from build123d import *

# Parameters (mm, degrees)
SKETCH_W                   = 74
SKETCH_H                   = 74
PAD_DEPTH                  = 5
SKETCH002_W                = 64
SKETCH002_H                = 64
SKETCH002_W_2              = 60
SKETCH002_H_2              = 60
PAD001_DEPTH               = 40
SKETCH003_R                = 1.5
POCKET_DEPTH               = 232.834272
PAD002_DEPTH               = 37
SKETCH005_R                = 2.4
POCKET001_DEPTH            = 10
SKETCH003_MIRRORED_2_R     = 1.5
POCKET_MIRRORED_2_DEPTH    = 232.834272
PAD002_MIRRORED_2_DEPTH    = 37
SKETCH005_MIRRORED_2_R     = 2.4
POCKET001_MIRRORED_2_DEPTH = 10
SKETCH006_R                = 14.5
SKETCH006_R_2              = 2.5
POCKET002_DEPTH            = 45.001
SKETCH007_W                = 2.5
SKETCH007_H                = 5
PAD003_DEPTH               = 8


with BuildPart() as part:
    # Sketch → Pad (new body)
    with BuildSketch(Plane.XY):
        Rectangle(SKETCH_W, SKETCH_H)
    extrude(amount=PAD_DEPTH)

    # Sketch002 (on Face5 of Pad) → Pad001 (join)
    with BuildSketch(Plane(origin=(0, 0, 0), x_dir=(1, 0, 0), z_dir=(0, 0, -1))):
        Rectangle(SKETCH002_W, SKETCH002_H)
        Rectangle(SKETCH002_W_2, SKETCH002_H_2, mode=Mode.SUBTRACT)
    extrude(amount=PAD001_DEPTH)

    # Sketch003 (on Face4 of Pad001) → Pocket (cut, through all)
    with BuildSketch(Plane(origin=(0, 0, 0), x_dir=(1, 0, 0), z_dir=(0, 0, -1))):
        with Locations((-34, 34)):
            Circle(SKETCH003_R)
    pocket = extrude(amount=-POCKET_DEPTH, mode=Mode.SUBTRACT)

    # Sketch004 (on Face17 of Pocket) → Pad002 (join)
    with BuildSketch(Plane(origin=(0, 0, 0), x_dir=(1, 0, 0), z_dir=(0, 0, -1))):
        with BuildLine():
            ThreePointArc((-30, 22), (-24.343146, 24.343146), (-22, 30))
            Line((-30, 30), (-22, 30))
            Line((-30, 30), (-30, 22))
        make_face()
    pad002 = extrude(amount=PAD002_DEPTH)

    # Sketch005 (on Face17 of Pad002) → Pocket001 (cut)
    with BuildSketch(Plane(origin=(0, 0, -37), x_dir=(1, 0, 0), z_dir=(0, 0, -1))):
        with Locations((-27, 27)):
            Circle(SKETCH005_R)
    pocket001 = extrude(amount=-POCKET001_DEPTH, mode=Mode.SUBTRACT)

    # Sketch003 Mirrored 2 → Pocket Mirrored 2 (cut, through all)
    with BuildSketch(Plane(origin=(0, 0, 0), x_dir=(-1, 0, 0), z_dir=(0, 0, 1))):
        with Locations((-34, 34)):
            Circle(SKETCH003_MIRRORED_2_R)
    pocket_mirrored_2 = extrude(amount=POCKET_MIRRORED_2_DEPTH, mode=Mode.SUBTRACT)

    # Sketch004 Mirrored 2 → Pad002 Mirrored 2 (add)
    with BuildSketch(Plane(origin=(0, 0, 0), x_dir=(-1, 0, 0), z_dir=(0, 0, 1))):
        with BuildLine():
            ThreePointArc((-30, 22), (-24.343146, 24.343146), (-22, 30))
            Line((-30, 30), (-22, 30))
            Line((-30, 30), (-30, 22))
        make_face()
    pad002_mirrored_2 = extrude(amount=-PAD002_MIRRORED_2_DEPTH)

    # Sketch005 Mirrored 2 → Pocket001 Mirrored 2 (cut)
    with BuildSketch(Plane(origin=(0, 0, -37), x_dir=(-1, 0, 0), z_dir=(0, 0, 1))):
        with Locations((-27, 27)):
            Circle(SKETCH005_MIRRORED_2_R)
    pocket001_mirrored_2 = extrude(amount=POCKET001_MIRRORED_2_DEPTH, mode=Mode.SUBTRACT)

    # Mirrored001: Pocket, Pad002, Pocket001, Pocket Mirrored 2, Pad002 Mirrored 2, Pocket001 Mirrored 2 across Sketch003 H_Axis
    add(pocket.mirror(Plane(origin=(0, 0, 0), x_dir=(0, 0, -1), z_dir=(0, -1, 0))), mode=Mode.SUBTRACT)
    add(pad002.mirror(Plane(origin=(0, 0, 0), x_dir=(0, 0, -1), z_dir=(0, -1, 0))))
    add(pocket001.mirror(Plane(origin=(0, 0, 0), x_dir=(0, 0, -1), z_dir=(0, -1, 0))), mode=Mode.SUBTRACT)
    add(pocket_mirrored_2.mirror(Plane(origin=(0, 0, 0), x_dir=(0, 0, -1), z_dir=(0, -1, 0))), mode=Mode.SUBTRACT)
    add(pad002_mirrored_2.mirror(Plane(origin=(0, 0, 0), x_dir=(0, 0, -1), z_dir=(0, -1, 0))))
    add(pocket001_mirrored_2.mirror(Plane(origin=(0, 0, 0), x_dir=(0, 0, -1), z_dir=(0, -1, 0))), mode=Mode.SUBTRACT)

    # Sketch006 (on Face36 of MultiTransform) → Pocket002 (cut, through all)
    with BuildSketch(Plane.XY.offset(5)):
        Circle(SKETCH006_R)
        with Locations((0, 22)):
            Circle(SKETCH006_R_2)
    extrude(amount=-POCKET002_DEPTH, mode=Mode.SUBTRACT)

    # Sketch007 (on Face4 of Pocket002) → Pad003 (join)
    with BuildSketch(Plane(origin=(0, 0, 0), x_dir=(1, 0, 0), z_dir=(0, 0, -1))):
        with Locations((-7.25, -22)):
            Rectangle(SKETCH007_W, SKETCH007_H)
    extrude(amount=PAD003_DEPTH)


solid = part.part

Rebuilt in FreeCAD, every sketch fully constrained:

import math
import FreeCAD as App
import Part
import Sketcher

V = App.Vector

doc = App.newDocument("Part")
body = doc.addObject("PartDesign::Body", "Body")

# Sketch on XY plane
sketch1 = body.newObject("Sketcher::SketchObject", "Sketch")
sketch1.AttachmentSupport = (doc.getObject("XY_Plane"), [""])
sketch1.MapMode = "FlatFace"
sketch1.addGeometry(Part.LineSegment(V(-37, 37, 0), V(-37, -37, 0)), False)
sketch1.addGeometry(Part.LineSegment(V(-37, -37, 0), V(37, -37, 0)), False)
sketch1.addGeometry(Part.LineSegment(V(37, -37, 0), V(37, 37, 0)), False)
sketch1.addGeometry(Part.LineSegment(V(37, 37, 0), V(-37, 37, 0)), False)
sketch1.addConstraint(Sketcher.Constraint("Coincident", 0, 2, 1, 1))
sketch1.addConstraint(Sketcher.Constraint("Coincident", 1, 2, 2, 1))
sketch1.addConstraint(Sketcher.Constraint("Coincident", 2, 2, 3, 1))
sketch1.addConstraint(Sketcher.Constraint("Coincident", 3, 2, 0, 1))
sketch1.addConstraint(Sketcher.Constraint("Vertical", 0))
sketch1.addConstraint(Sketcher.Constraint("Horizontal", 1))
sketch1.addConstraint(Sketcher.Constraint("Vertical", 2))
sketch1.addConstraint(Sketcher.Constraint("Horizontal", 3))
sketch1.addConstraint(Sketcher.Constraint("Symmetric", 0, 2, 2, 2, -1, 1))
sketch1.addConstraint(Sketcher.Constraint("Equal", 3, 0))
sketch1.addConstraint(Sketcher.Constraint("DistanceX", 1, 1, 1, 2, 74.0))
pad1 = body.newObject("PartDesign::Pad", "Pad")
pad1.Profile = sketch1
pad1.Length = 5

# Sketch on XY plane
sketch2 = body.newObject("Sketcher::SketchObject", "Sketch001")
sketch2.AttachmentSupport = (doc.getObject("XY_Plane"), [""])
sketch2.MapMode = "FlatFace"
sketch2.addGeometry(Part.LineSegment(V(-32, -32, 0), V(-32, 32, 0)), False)
sketch2.addGeometry(Part.LineSegment(V(-32, 32, 0), V(32, 32, 0)), False)
sketch2.addGeometry(Part.LineSegment(V(32, 32, 0), V(32, -32, 0)), False)
sketch2.addGeometry(Part.LineSegment(V(32, -32, 0), V(-32, -32, 0)), False)
sketch2.addGeometry(Part.LineSegment(V(30, 30, 0), V(-30, 30, 0)), False)
sketch2.addGeometry(Part.LineSegment(V(-30, 30, 0), V(-30, -30, 0)), False)
sketch2.addGeometry(Part.LineSegment(V(-30, -30, 0), V(30, -30, 0)), False)
sketch2.addGeometry(Part.LineSegment(V(30, -30, 0), V(30, 30, 0)), False)
sketch2.addConstraint(Sketcher.Constraint("Coincident", 0, 2, 1, 1))
sketch2.addConstraint(Sketcher.Constraint("Coincident", 1, 2, 2, 1))
sketch2.addConstraint(Sketcher.Constraint("Coincident", 2, 2, 3, 1))
sketch2.addConstraint(Sketcher.Constraint("Coincident", 3, 2, 0, 1))
sketch2.addConstraint(Sketcher.Constraint("Coincident", 4, 2, 5, 1))
sketch2.addConstraint(Sketcher.Constraint("Coincident", 5, 2, 6, 1))
sketch2.addConstraint(Sketcher.Constraint("Coincident", 6, 2, 7, 1))
sketch2.addConstraint(Sketcher.Constraint("Coincident", 7, 2, 4, 1))
sketch2.addConstraint(Sketcher.Constraint("Vertical", 0))
sketch2.addConstraint(Sketcher.Constraint("Horizontal", 1))
sketch2.addConstraint(Sketcher.Constraint("Vertical", 2))
sketch2.addConstraint(Sketcher.Constraint("Horizontal", 3))
sketch2.addConstraint(Sketcher.Constraint("Horizontal", 4))
sketch2.addConstraint(Sketcher.Constraint("Vertical", 5))
sketch2.addConstraint(Sketcher.Constraint("Horizontal", 6))
sketch2.addConstraint(Sketcher.Constraint("Vertical", 7))
sketch2.addConstraint(Sketcher.Constraint("Symmetric", 0, 2, 2, 2, -1, 1))
sketch2.addConstraint(Sketcher.Constraint("Symmetric", 4, 2, 6, 2, -1, 1))
sketch2.addConstraint(Sketcher.Constraint("Equal", 3, 0))
sketch2.addConstraint(Sketcher.Constraint("Equal", 6, 5))
sketch2.addConstraint(Sketcher.Constraint("DistanceX", 1, 1, 1, 2, 64.0))
sketch2.addConstraint(Sketcher.Constraint("DistanceX", 4, 2, 4, 1, 60.0))
pad2 = body.newObject("PartDesign::Pad", "Pad001")
pad2.Profile = sketch2
pad2.Length = 40
pad2.Reversed = True

# Sketch on XY plane
sketch3 = body.newObject("Sketcher::SketchObject", "Sketch002")
sketch3.AttachmentSupport = (doc.getObject("XY_Plane"), [""])
sketch3.MapMode = "FlatFace"
sketch3.addGeometry(Part.Circle(V(-34, -34, 0), V(0, 0, 1), 1.5), False)
sketch3.addConstraint(Sketcher.Constraint("Diameter", 0, 3.0))
sketch3.addConstraint(Sketcher.Constraint("DistanceX", 0, 3, -1, 1, 34.0))
sketch3.addConstraint(Sketcher.Constraint("DistanceY", 0, 3, -1, 1, 34.0))
pocket1 = body.newObject("PartDesign::Pocket", "Pocket")
pocket1.Profile = sketch3
pocket1.Type = "ThroughAll"
pocket1.Reversed = True

# Sketch on XY plane
sketch4 = body.newObject("Sketcher::SketchObject", "Sketch003")
sketch4.AttachmentSupport = (doc.getObject("XY_Plane"), [""])
sketch4.MapMode = "FlatFace"
sketch4.addGeometry(Part.ArcOfCircle(Part.Circle(V(-30.000001, -30.000001, 0), V(0, 0, 1), 8.000001), math.radians(0.000006), math.radians(89.999994)), False)
sketch4.addGeometry(Part.LineSegment(V(-22, -30, 0), V(-30, -30, 0)), False)
sketch4.addGeometry(Part.LineSegment(V(-30, -30, 0), V(-30, -22, 0)), False)
sketch4.addConstraint(Sketcher.Constraint("Coincident", 0, 1, 1, 1))
sketch4.addConstraint(Sketcher.Constraint("Coincident", 1, 2, 2, 1))
sketch4.addConstraint(Sketcher.Constraint("Coincident", 2, 2, 0, 2))
sketch4.addConstraint(Sketcher.Constraint("Horizontal", 1))
sketch4.addConstraint(Sketcher.Constraint("Vertical", 2))
sketch4.addConstraint(Sketcher.Constraint("Coincident", 1, 2, 0, 3))
sketch4.addConstraint(Sketcher.Constraint("Radius", 0, 8.000001))
sketch4.addConstraint(Sketcher.Constraint("DistanceX", 0, 3, -1, 1, 30.000001))
sketch4.addConstraint(Sketcher.Constraint("DistanceY", 0, 3, -1, 1, 30.000001))
pad3 = body.newObject("PartDesign::Pad", "Pad002")
pad3.Profile = sketch4
pad3.Length = 37
pad3.Reversed = True

# Sketch on XY plane
sketch5 = body.newObject("Sketcher::SketchObject", "Sketch004")
sketch5.AttachmentSupport = (doc.getObject("XY_Plane"), [""])
sketch5.MapMode = "FlatFace"
sketch5.AttachmentOffset = App.Placement(V(0, 0, -37), App.Rotation())
sketch5.addGeometry(Part.Circle(V(-27, -27, 0), V(0, 0, 1), 2.4), False)
sketch5.addConstraint(Sketcher.Constraint("Diameter", 0, 4.8))
sketch5.addConstraint(Sketcher.Constraint("DistanceX", 0, 3, -1, 1, 27.0))
sketch5.addConstraint(Sketcher.Constraint("DistanceY", 0, 3, -1, 1, 27.0))
pocket2 = body.newObject("PartDesign::Pocket", "Pocket001")
pocket2.Profile = sketch5
pocket2.Length = 10
pocket2.Reversed = True

# Sketch on XY plane
sketch6 = body.newObject("Sketcher::SketchObject", "Sketch005")
sketch6.AttachmentSupport = (doc.getObject("XY_Plane"), [""])
sketch6.MapMode = "FlatFace"
sketch6.addGeometry(Part.Circle(V(34, -34, 0), V(0, 0, 1), 1.5), False)
sketch6.addConstraint(Sketcher.Constraint("Diameter", 0, 3.0))
sketch6.addConstraint(Sketcher.Constraint("DistanceX", -1, 1, 0, 3, 34.0))
sketch6.addConstraint(Sketcher.Constraint("DistanceY", 0, 3, -1, 1, 34.0))
pocket3 = body.newObject("PartDesign::Pocket", "Pocket002")
pocket3.Profile = sketch6
pocket3.Type = "ThroughAll"
pocket3.Reversed = True

# Sketch on XY plane
sketch7 = body.newObject("Sketcher::SketchObject", "Sketch006")
sketch7.AttachmentSupport = (doc.getObject("XY_Plane"), [""])
sketch7.MapMode = "FlatFace"
sketch7.addGeometry(Part.ArcOfCircle(Part.Circle(V(30.000001, -30.000001, 0), V(0, 0, 1), 8.000001), math.radians(90.000006), math.radians(179.999994)), False)
sketch7.addGeometry(Part.LineSegment(V(22, -30, 0), V(30, -30, 0)), False)
sketch7.addGeometry(Part.LineSegment(V(30, -30, 0), V(30, -22, 0)), False)
sketch7.addConstraint(Sketcher.Constraint("Coincident", 0, 2, 1, 1))
sketch7.addConstraint(Sketcher.Constraint("Coincident", 1, 2, 2, 1))
sketch7.addConstraint(Sketcher.Constraint("Coincident", 2, 2, 0, 1))
sketch7.addConstraint(Sketcher.Constraint("Horizontal", 1))
sketch7.addConstraint(Sketcher.Constraint("Vertical", 2))
sketch7.addConstraint(Sketcher.Constraint("Coincident", 1, 2, 0, 3))
sketch7.addConstraint(Sketcher.Constraint("Radius", 0, 8.000001))
sketch7.addConstraint(Sketcher.Constraint("DistanceX", -1, 1, 0, 3, 30.000001))
sketch7.addConstraint(Sketcher.Constraint("DistanceY", 0, 3, -1, 1, 30.000001))
pad4 = body.newObject("PartDesign::Pad", "Pad003")
pad4.Profile = sketch7
pad4.Length = 37
pad4.Reversed = True

# Sketch on XY plane
sketch8 = body.newObject("Sketcher::SketchObject", "Sketch007")
sketch8.AttachmentSupport = (doc.getObject("XY_Plane"), [""])
sketch8.MapMode = "FlatFace"
sketch8.AttachmentOffset = App.Placement(V(0, 0, -37), App.Rotation())
sketch8.addGeometry(Part.Circle(V(27, -27, 0), V(0, 0, 1), 2.4), False)
sketch8.addConstraint(Sketcher.Constraint("Diameter", 0, 4.8))
sketch8.addConstraint(Sketcher.Constraint("DistanceX", -1, 1, 0, 3, 27.0))
sketch8.addConstraint(Sketcher.Constraint("DistanceY", 0, 3, -1, 1, 27.0))
pocket4 = body.newObject("PartDesign::Pocket", "Pocket003")
pocket4.Profile = sketch8
pocket4.Length = 10
pocket4.Reversed = True
doc.recompute()

mirrored = body.newObject("PartDesign::Mirrored", "Mirrored")
mirrored.Originals = [pocket1, pad3, pocket2, pocket3, pad4, pocket4]
mirrored.MirrorPlane = (doc.getObject("XZ_Plane"), [""])
body.Tip = mirrored

# Sketch on XY plane
sketch9 = body.newObject("Sketcher::SketchObject", "Sketch008")
sketch9.AttachmentSupport = (doc.getObject("XY_Plane"), [""])
sketch9.MapMode = "FlatFace"
sketch9.AttachmentOffset = App.Placement(V(0, 0, 5), App.Rotation())
sketch9.addGeometry(Part.Circle(V(0, 0, 0), V(0, 0, 1), 14.5), False)
sketch9.addGeometry(Part.Circle(V(0, 22, 0), V(0, 0, 1), 2.5), False)
sketch9.addConstraint(Sketcher.Constraint("Coincident", 0, 3, -1, 1))
sketch9.addConstraint(Sketcher.Constraint("PointOnObject", 1, 3, -2))
sketch9.addConstraint(Sketcher.Constraint("Diameter", 0, 29.0))
sketch9.addConstraint(Sketcher.Constraint("Diameter", 1, 5.0))
sketch9.addConstraint(Sketcher.Constraint("DistanceY", -1, 1, 1, 3, 22.0))
pocket5 = body.newObject("PartDesign::Pocket", "Pocket004")
pocket5.Profile = sketch9
pocket5.Type = "ThroughAll"

# Sketch on XY plane
sketch10 = body.newObject("Sketcher::SketchObject", "Sketch009")
sketch10.AttachmentSupport = (doc.getObject("XY_Plane"), [""])
sketch10.MapMode = "FlatFace"
sketch10.addGeometry(Part.LineSegment(V(-8.5, 19.5, 0), V(-8.5, 24.5, 0)), False)
sketch10.addGeometry(Part.LineSegment(V(-8.5, 24.5, 0), V(-6, 24.5, 0)), False)
sketch10.addGeometry(Part.LineSegment(V(-6, 24.5, 0), V(-6, 19.5, 0)), False)
sketch10.addGeometry(Part.LineSegment(V(-6, 19.5, 0), V(-8.5, 19.5, 0)), False)
sketch10.addConstraint(Sketcher.Constraint("Coincident", 0, 2, 1, 1))
sketch10.addConstraint(Sketcher.Constraint("Coincident", 1, 2, 2, 1))
sketch10.addConstraint(Sketcher.Constraint("Coincident", 2, 2, 3, 1))
sketch10.addConstraint(Sketcher.Constraint("Coincident", 3, 2, 0, 1))
sketch10.addConstraint(Sketcher.Constraint("Vertical", 0))
sketch10.addConstraint(Sketcher.Constraint("Horizontal", 1))
sketch10.addConstraint(Sketcher.Constraint("Vertical", 2))
sketch10.addConstraint(Sketcher.Constraint("Horizontal", 3))
sketch10.addConstraint(Sketcher.Constraint("DistanceY", 0, 1, 0, 2, 5.0))
sketch10.addConstraint(Sketcher.Constraint("DistanceX", 1, 1, 1, 2, 2.5))
sketch10.addConstraint(Sketcher.Constraint("DistanceX", 1, 2, -1, 1, 6.0))
sketch10.addConstraint(Sketcher.Constraint("DistanceY", -1, 1, 0, 2, 24.5))
pad5 = body.newObject("PartDesign::Pad", "Pad004")
pad5.Profile = sketch10
pad5.Length = 8
pad5.Reversed = True

doc.recompute()
